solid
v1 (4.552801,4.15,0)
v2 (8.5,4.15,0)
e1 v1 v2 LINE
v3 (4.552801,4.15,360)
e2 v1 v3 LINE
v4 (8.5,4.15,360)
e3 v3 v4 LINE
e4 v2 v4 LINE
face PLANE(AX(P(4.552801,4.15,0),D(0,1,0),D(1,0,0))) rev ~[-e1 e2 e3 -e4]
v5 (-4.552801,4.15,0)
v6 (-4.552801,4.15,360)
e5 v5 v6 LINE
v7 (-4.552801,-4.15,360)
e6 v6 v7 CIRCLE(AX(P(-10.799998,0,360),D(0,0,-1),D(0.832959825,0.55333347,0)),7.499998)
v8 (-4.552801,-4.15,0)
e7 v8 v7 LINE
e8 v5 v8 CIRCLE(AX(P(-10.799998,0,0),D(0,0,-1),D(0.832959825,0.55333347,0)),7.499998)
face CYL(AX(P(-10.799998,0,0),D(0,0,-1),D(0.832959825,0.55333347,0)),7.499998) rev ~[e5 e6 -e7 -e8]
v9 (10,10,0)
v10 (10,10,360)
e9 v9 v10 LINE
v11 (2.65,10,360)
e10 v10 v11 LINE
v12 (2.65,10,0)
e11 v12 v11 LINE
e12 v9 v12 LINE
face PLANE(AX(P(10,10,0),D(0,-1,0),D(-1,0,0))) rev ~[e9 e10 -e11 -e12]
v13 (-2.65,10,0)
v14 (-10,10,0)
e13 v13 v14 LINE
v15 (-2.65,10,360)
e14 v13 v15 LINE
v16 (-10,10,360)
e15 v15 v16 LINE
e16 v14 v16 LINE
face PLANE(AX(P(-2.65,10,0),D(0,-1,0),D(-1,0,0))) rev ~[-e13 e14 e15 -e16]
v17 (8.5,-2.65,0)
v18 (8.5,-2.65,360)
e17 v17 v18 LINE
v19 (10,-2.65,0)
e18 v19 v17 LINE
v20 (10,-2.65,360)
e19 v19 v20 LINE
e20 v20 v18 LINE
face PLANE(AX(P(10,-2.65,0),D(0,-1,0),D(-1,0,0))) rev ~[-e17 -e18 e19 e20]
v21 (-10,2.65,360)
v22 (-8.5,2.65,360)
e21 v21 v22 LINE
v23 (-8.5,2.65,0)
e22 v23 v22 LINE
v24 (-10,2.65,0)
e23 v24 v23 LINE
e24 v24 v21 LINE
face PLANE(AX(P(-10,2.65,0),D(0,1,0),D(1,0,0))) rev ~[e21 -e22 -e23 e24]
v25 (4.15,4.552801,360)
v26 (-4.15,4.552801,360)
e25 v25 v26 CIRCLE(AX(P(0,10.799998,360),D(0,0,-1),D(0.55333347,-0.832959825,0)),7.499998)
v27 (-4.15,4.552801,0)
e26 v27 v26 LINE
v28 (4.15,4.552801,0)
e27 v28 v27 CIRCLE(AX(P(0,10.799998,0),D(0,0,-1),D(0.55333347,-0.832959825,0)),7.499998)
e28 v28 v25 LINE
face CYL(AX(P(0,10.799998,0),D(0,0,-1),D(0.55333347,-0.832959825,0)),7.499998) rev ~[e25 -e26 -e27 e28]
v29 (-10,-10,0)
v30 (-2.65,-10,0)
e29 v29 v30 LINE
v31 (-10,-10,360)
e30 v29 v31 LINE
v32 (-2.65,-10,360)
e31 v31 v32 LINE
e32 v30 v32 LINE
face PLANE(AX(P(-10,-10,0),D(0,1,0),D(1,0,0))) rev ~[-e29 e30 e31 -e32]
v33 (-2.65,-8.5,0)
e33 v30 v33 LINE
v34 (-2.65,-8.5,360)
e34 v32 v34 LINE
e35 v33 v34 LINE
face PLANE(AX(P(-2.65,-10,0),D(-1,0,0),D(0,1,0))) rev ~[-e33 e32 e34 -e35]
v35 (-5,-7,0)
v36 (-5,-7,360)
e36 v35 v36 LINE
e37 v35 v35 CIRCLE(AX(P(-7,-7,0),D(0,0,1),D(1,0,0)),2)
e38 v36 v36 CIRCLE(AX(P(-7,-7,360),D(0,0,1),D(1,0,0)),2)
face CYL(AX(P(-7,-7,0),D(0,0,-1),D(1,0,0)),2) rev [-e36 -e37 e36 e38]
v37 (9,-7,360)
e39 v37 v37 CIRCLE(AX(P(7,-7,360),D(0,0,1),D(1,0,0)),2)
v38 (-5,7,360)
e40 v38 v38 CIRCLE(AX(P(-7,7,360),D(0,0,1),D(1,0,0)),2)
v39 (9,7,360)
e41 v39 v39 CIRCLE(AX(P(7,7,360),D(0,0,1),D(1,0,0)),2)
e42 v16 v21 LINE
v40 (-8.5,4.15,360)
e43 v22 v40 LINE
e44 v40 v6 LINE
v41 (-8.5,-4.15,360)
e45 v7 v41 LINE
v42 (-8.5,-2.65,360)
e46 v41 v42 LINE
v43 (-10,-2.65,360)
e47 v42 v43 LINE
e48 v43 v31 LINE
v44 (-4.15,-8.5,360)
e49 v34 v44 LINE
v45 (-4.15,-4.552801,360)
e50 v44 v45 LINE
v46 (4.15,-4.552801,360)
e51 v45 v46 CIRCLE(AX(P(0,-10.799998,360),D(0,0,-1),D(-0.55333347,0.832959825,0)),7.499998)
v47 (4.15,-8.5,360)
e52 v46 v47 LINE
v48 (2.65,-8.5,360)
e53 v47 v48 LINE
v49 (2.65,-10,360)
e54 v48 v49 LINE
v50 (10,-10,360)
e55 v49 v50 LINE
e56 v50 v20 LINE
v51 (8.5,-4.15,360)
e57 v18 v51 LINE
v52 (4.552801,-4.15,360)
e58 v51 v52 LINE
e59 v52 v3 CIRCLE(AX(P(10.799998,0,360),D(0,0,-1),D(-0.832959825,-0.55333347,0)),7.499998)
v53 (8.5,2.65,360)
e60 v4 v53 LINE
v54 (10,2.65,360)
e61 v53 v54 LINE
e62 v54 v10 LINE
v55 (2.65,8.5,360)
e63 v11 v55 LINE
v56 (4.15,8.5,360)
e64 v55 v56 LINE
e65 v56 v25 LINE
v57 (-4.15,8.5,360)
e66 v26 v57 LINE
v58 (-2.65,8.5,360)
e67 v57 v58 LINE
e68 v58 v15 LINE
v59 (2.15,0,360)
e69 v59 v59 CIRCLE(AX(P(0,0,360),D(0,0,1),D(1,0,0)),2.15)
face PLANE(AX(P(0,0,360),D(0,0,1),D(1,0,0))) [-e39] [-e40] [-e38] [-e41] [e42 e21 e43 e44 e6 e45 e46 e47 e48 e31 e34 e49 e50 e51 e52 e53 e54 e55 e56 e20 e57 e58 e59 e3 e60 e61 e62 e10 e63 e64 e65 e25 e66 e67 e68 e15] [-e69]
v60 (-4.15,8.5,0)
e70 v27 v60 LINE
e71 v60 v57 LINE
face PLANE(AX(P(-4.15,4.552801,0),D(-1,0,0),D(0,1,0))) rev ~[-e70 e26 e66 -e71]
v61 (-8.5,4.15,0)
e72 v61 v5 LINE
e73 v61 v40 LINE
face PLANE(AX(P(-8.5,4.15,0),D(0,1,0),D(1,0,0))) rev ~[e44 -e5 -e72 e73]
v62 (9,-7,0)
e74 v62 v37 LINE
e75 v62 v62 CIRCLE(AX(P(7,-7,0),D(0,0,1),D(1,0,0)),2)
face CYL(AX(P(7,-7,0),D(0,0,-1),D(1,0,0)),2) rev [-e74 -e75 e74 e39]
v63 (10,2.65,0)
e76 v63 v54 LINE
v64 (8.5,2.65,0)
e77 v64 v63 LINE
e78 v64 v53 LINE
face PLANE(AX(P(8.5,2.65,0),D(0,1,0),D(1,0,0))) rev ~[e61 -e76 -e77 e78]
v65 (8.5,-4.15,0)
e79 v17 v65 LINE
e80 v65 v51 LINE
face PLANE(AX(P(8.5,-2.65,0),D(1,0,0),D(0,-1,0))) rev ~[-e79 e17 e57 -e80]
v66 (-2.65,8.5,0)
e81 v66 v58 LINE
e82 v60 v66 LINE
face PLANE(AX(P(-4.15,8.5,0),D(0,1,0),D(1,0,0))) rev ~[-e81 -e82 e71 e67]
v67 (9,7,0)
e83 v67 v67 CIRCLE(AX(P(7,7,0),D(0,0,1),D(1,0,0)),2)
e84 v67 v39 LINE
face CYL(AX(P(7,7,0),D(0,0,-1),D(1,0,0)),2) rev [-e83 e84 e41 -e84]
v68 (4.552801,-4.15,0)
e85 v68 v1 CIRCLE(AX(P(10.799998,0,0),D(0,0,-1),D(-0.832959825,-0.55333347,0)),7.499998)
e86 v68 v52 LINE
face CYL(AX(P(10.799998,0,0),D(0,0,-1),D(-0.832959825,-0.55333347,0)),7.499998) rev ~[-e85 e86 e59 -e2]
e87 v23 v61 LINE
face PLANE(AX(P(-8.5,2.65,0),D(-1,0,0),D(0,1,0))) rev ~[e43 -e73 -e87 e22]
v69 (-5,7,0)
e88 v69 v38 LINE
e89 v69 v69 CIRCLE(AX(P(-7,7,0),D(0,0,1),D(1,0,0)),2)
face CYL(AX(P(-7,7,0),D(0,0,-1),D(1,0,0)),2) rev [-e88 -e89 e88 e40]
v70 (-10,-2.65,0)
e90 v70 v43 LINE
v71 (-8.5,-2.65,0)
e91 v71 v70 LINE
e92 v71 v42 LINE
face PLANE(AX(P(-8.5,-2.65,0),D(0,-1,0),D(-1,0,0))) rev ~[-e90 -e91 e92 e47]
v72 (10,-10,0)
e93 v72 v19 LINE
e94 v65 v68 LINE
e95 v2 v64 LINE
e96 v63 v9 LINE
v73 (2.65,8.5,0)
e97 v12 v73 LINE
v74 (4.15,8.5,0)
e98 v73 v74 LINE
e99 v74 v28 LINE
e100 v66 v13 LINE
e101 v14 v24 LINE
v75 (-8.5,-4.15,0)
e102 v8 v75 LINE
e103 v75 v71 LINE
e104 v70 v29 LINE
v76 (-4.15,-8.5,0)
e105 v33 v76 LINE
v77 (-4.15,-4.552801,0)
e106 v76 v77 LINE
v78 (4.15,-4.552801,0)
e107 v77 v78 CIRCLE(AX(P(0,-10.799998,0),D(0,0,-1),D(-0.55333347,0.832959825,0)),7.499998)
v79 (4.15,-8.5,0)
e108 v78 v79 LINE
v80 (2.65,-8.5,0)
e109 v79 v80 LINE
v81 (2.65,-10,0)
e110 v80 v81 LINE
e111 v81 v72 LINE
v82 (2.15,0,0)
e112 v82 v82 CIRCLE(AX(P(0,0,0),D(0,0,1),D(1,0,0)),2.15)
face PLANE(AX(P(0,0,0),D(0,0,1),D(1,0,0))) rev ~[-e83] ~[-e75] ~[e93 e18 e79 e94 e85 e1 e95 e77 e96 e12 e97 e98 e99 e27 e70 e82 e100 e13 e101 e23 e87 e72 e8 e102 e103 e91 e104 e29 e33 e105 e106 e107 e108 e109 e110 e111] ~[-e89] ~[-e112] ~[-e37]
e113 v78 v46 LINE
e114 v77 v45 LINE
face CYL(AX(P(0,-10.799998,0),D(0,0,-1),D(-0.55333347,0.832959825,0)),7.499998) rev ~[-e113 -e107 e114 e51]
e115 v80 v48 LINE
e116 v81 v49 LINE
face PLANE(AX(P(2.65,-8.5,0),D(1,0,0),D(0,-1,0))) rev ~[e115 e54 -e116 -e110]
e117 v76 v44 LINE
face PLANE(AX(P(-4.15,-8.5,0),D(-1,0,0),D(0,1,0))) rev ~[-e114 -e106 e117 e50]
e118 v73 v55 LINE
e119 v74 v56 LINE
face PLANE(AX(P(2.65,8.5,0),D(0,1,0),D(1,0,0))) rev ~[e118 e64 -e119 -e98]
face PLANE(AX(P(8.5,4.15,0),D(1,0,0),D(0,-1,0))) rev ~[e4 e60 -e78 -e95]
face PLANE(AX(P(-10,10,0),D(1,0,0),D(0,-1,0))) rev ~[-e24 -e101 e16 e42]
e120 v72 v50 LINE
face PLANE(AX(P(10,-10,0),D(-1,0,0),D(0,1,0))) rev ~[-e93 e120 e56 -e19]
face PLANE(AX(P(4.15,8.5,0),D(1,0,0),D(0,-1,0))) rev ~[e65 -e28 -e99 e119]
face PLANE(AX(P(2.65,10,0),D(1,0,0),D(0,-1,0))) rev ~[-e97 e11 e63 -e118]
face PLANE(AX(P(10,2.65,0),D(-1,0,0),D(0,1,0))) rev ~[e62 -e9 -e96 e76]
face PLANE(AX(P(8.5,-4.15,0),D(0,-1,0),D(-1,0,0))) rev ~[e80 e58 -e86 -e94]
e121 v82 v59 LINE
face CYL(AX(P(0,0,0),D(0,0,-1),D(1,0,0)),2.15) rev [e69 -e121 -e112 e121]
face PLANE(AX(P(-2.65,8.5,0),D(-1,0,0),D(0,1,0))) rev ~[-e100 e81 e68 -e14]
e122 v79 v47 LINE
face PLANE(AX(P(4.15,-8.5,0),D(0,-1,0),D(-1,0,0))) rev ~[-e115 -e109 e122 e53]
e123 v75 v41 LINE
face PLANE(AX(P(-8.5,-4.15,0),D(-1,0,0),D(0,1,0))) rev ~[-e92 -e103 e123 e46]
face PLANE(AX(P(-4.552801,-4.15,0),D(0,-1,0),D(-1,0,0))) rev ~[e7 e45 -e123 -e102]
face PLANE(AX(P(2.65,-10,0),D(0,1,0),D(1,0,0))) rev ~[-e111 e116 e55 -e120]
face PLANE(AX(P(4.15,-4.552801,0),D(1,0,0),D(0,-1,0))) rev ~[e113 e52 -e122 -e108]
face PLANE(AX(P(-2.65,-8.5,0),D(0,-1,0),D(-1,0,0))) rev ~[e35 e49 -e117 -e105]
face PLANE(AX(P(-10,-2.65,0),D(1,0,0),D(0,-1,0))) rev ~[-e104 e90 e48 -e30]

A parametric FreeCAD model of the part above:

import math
import FreeCAD as App
import Part
import Sketcher
from FreeCAD import Vector

doc = App.newDocument("Part")
body = doc.addObject("PartDesign::Body", "Body")

# Sketch on XY plane
sketch1 = body.newObject("Sketcher::SketchObject", "Sketch")
sketch1.AttachmentSupport = (doc.getObject("XY_Plane"), [""])
sketch1.MapMode = "FlatFace"
sketch1.addGeometry([
    Part.LineSegment(Vector(-10, 10, 0), Vector(-10, 2.65, 0)),  # 0
    Part.LineSegment(Vector(-10, 2.65, 0), Vector(-8.5, 2.65, 0)),  # 1
    Part.LineSegment(Vector(-8.5, 2.65, 0), Vector(-8.5, 4.15, 0)),  # 2
    Part.LineSegment(Vector(-8.5, 4.15, 0), Vector(-4.552801, 4.15, 0)),  # 3
    Part.ArcOfCircle(Part.Circle(Vector(-10.799998, 0, 0), Vector(0, 0, 1), 7.499998), math.radians(-33.596005), math.radians(33.596005)),  # 4
    Part.LineSegment(Vector(-4.552801, -4.15, 0), Vector(-8.5, -4.15, 0)),  # 5
    Part.LineSegment(Vector(-8.5, -4.15, 0), Vector(-8.5, -2.65, 0)),  # 6
    Part.LineSegment(Vector(-8.5, -2.65, 0), Vector(-10, -2.65, 0)),  # 7
    Part.LineSegment(Vector(-10, -2.65, 0), Vector(-10, -10, 0)),  # 8
    Part.LineSegment(Vector(-10, -10, 0), Vector(-2.65, -10, 0)),  # 9
    Part.LineSegment(Vector(-2.65, -10, 0), Vector(-2.65, -8.5, 0)),  # 10
    Part.LineSegment(Vector(-2.65, -8.5, 0), Vector(-4.15, -8.5, 0)),  # 11
    Part.LineSegment(Vector(-4.15, -8.5, 0), Vector(-4.15, -4.552801, 0)),  # 12
    Part.ArcOfCircle(Part.Circle(Vector(0, -10.799998, 0), Vector(0, 0, 1), 7.499998), math.radians(56.403995), math.radians(123.596005)),  # 13
    Part.LineSegment(Vector(4.15, -4.552801, 0), Vector(4.15, -8.5, 0)),  # 14
    Part.LineSegment(Vector(4.15, -8.5, 0), Vector(2.65, -8.5, 0)),  # 15
    Part.LineSegment(Vector(2.65, -8.5, 0), Vector(2.65, -10, 0)),  # 16
    Part.LineSegment(Vector(2.65, -10, 0), Vector(10, -10, 0)),  # 17
    Part.LineSegment(Vector(10, -10, 0), Vector(10, -2.65, 0)),  # 18
    Part.LineSegment(Vector(10, -2.65, 0), Vector(8.5, -2.65, 0)),  # 19
    Part.LineSegment(Vector(8.5, -2.65, 0), Vector(8.5, -4.15, 0)),  # 20
    Part.LineSegment(Vector(8.5, -4.15, 0), Vector(4.552801, -4.15, 0)),  # 21
    Part.ArcOfCircle(Part.Circle(Vector(10.799998, 0, 0), Vector(0, 0, 1), 7.499998), math.radians(146.403995), math.radians(213.596005)),  # 22
    Part.LineSegment(Vector(4.552801, 4.15, 0), Vector(8.5, 4.15, 0)),  # 23
    Part.LineSegment(Vector(8.5, 4.15, 0), Vector(8.5, 2.65, 0)),  # 24
    Part.LineSegment(Vector(8.5, 2.65, 0), Vector(10, 2.65, 0)),  # 25
    Part.LineSegment(Vector(10, 2.65, 0), Vector(10, 10, 0)),  # 26
    Part.LineSegment(Vector(10, 10, 0), Vector(2.65, 10, 0)),  # 27
    Part.LineSegment(Vector(2.65, 10, 0), Vector(2.65, 8.5, 0)),  # 28
    Part.LineSegment(Vector(2.65, 8.5, 0), Vector(4.15, 8.5, 0)),  # 29
    Part.LineSegment(Vector(4.15, 8.5, 0), Vector(4.15, 4.552801, 0)),  # 30
    Part.ArcOfCircle(Part.Circle(Vector(0, 10.799998, 0), Vector(0, 0, 1), 7.499998), math.radians(-123.596005), math.radians(-56.403995)),  # 31
    Part.LineSegment(Vector(-4.15, 4.552801, 0), Vector(-4.15, 8.5, 0)),  # 32
    Part.LineSegment(Vector(-4.15, 8.5, 0), Vector(-2.65, 8.5, 0)),  # 33
    Part.LineSegment(Vector(-2.65, 8.5, 0), Vector(-2.65, 10, 0)),  # 34
    Part.LineSegment(Vector(-2.65, 10, 0), Vector(-10, 10, 0)),  # 35
    Part.Circle(Vector(-7, -7, 0), Vector(0, 0, 1), 2),  # 36
    Part.Circle(Vector(7, -7, 0), Vector(0, 0, 1), 2),  # 37
    Part.Circle(Vector(-7, 7, 0), Vector(0, 0, 1), 2),  # 38
    Part.Circle(Vector(0, 0, 0), Vector(0, 0, 1), 2.15),  # 39
    Part.Circle(Vector(7, 7, 0), Vector(0, 0, 1), 2),  # 40
], False)
sketch1.addConstraint([
    Sketcher.Constraint("Coincident", 0, 2, 1, 1),
    Sketcher.Constraint("Coincident", 1, 2, 2, 1),
    Sketcher.Constraint("Coincident", 2, 2, 3, 1),
    Sketcher.Constraint("Coincident", 3, 2, 4, 2),
    Sketcher.Constraint("Coincident", 4, 1, 5, 1),
    Sketcher.Constraint("Coincident", 5, 2, 6, 1),
    Sketcher.Constraint("Coincident", 6, 2, 7, 1),
    Sketcher.Constraint("Coincident", 7, 2, 8, 1),
    Sketcher.Constraint("Coincident", 8, 2, 9, 1),
    Sketcher.Constraint("Coincident", 9, 2, 10, 1),
    Sketcher.Constraint("Coincident", 10, 2, 11, 1),
    Sketcher.Constraint("Coincident", 11, 2, 12, 1),
    Sketcher.Constraint("Coincident", 12, 2, 13, 2),
    Sketcher.Constraint("Coincident", 13, 1, 14, 1),
    Sketcher.Constraint("Coincident", 14, 2, 15, 1),
    Sketcher.Constraint("Coincident", 15, 2, 16, 1),
    Sketcher.Constraint("Coincident", 16, 2, 17, 1),
    Sketcher.Constraint("Coincident", 17, 2, 18, 1),
    Sketcher.Constraint("Coincident", 18, 2, 19, 1),
    Sketcher.Constraint("Coincident", 19, 2, 20, 1),
    Sketcher.Constraint("Coincident", 20, 2, 21, 1),
    Sketcher.Constraint("Coincident", 21, 2, 22, 2),
    Sketcher.Constraint("Coincident", 22, 1, 23, 1),
    Sketcher.Constraint("Coincident", 23, 2, 24, 1),
    Sketcher.Constraint("Coincident", 24, 2, 25, 1),
    Sketcher.Constraint("Coincident", 25, 2, 26, 1),
    Sketcher.Constraint("Coincident", 26, 2, 27, 1),
    Sketcher.Constraint("Coincident", 27, 2, 28, 1),
    Sketcher.Constraint("Coincident", 28, 2, 29, 1),
    Sketcher.Constraint("Coincident", 29, 2, 30, 1),
    Sketcher.Constraint("Coincident", 30, 2, 31, 2),
    Sketcher.Constraint("Coincident", 31, 1, 32, 1),
    Sketcher.Constraint("Coincident", 32, 2, 33, 1),
    Sketcher.Constraint("Coincident", 33, 2, 34, 1),
    Sketcher.Constraint("Coincident", 34, 2, 35, 1),
    Sketcher.Constraint("Coincident", 35, 2, 0, 1),
    Sketcher.Constraint("Vertical", 0),
    Sketcher.Constraint("Horizontal", 1),
    Sketcher.Constraint("Vertical", 2),
    Sketcher.Constraint("Horizontal", 3),
    Sketcher.Constraint("Horizontal", 5),
    Sketcher.Constraint("Vertical", 6),
    Sketcher.Constraint("Horizontal", 7),
    Sketcher.Constraint("Vertical", 8),
    Sketcher.Constraint("Horizontal", 9),
    Sketcher.Constraint("Vertical", 10),
    Sketcher.Constraint("Horizontal", 11),
    Sketcher.Constraint("Vertical", 12),
    Sketcher.Constraint("Vertical", 14),
    Sketcher.Constraint("Horizontal", 15),
    Sketcher.Constraint("Vertical", 16),
    Sketcher.Constraint("Horizontal", 17),
    Sketcher.Constraint("Vertical", 18),
    Sketcher.Constraint("Horizontal", 19),
    Sketcher.Constraint("Vertical", 20),
    Sketcher.Constraint("Horizontal", 21),
    Sketcher.Constraint("Horizontal", 23),
    Sketcher.Constraint("Vertical", 24),
    Sketcher.Constraint("Horizontal", 25),
    Sketcher.Constraint("Vertical", 26),
    Sketcher.Constraint("Horizontal", 27),
    Sketcher.Constraint("Vertical", 28),
    Sketcher.Constraint("Horizontal", 29),
    Sketcher.Constraint("Vertical", 30),
    Sketcher.Constraint("Vertical", 32),
    Sketcher.Constraint("Horizontal", 33),
    Sketcher.Constraint("Vertical", 34),
    Sketcher.Constraint("Horizontal", 35),
    Sketcher.Constraint("Coincident", 39, 3, -1, 1),
    Sketcher.Constraint("Equal", 4, 13),
    Sketcher.Constraint("Equal", 13, 22),
    Sketcher.Constraint("Equal", 22, 31),
    Sketcher.Constraint("Equal", 36, 37),
    Sketcher.Constraint("Equal", 37, 38),
    Sketcher.Constraint("Equal", 38, 40),
    Sketcher.Constraint("Symmetric", 4, 3, 22, 3, -1, 1),
    Sketcher.Constraint("Symmetric", 13, 3, 31, 3, -1, 1),
    Sketcher.Constraint("Symmetric", 37, 3, 38, 3, -1, 1),
    Sketcher.Constraint("Symmetric", 36, 3, 40, 3, -1, 1),
    Sketcher.Constraint("Symmetric", 0, 2, 18, 2, -1, 1),
    Sketcher.Constraint("Symmetric", 2, 2, 20, 2, -1, 1),
    Sketcher.Constraint("Symmetric", 5, 2, 23, 2, -1, 1),
    Sketcher.Constraint("Symmetric", 7, 2, 25, 2, -1, 1),
    Sketcher.Constraint("Symmetric", 9, 2, 27, 2, -1, 1),
    Sketcher.Constraint("Symmetric", 11, 2, 29, 2, -1, 1),
    Sketcher.Constraint("Symmetric", 14, 2, 32, 2, -1, 1),
    Sketcher.Constraint("Symmetric", 16, 2, 34, 2, -1, 1),
    Sketcher.Constraint("Symmetric", 36, 3, 37, 3, -2),
    Sketcher.Constraint("Symmetric", 12, 2, 13, 1, -2),
    Sketcher.Constraint("Symmetric", 10, 2, 15, 2, -2),
    Sketcher.Constraint("Symmetric", 8, 2, 17, 2, -2),
    Sketcher.Constraint("Symmetric", 6, 2, 19, 2, -2),
    Sketcher.Constraint("Symmetric", 4, 1, 21, 2, -2),
    Sketcher.Constraint("Equal", 7, 11),
    Sketcher.Constraint("Equal", 35, 0),
    Sketcher.Constraint("Equal", 33, 2),
    Sketcher.Constraint("Equal", 6, 10),
    Sketcher.Constraint("Equal", 23, 12),
    Sketcher.Constraint("Diameter", 36, 4.0),
    Sketcher.Constraint("Diameter", 39, 4.3),
    Sketcher.Constraint("Radius", 4, 7.499998),
    Sketcher.Constraint("DistanceX", 1, 1, 1, 2, 1.5),
    Sketcher.Constraint("DistanceX", 36, 3, -1, 1, 7.0),
    Sketcher.Constraint("DistanceY", 36, 3, -1, 1, 7.0),
    Sketcher.Constraint("DistanceX", 0, 2, -1, 1, 10.0),
    Sketcher.Constraint("DistanceY", 8, 2, -1, 1, 10.0),
    Sketcher.Constraint("DistanceX", 9, 1, 9, 2, 7.35),
    Sketcher.Constraint("DistanceX", 4, 3, -1, 1, 10.799998),
])
pad1 = body.newObject("PartDesign::Pad", "Pad")
pad1.Profile = sketch1
pad1.Length = 360

doc.recompute()
